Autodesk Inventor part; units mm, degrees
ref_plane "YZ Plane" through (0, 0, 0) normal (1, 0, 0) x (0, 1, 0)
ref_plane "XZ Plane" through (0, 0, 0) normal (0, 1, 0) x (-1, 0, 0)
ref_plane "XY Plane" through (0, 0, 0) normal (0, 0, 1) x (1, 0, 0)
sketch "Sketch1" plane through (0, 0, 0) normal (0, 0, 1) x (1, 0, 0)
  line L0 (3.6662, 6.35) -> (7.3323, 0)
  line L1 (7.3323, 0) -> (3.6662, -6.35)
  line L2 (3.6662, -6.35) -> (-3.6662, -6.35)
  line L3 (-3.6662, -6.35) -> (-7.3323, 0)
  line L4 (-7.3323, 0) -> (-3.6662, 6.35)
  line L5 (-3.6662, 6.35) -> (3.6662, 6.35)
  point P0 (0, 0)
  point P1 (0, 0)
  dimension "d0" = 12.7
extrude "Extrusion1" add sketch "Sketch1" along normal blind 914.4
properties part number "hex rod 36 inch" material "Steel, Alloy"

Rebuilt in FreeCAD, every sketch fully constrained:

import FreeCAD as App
import Part
import Sketcher
from FreeCAD import Vector
Q = App.Units.Quantity

doc = App.newDocument("Part")
body = doc.addObject("PartDesign::Body", "Body")

# Sketch on XY plane
sketch1 = body.newObject("Sketcher::SketchObject", "Sketch")
sketch1.AttachmentSupport = (doc.getObject("XY_Plane"), [""])
sketch1.MapMode = "FlatFace"
sketch1.addGeometry([
    Part.LineSegment(Vector(7.3323, 0, 0), Vector(3.6662, 6.35, 0)),  # 0
    Part.LineSegment(Vector(3.6662, 6.35, 0), Vector(-3.6662, 6.35, 0)),  # 1
    Part.LineSegment(Vector(-3.6662, 6.35, 0), Vector(-7.3323, 0, 0)),  # 2
    Part.LineSegment(Vector(-7.3323, 0, 0), Vector(-3.6662, -6.35, 0)),  # 3
    Part.LineSegment(Vector(-3.6662, -6.35, 0), Vector(3.6662, -6.35, 0)),  # 4
    Part.LineSegment(Vector(3.6662, -6.35, 0), Vector(7.3323, 0, 0)),  # 5
], False)
sketch1.addConstraint([
    Sketcher.Constraint("Coincident", 0, 2, 1, 1),
    Sketcher.Constraint("Coincident", 1, 2, 2, 1),
    Sketcher.Constraint("Coincident", 2, 2, 3, 1),
    Sketcher.Constraint("Coincident", 3, 2, 4, 1),
    Sketcher.Constraint("Coincident", 4, 2, 5, 1),
    Sketcher.Constraint("Coincident", 5, 2, 0, 1),
    Sketcher.Constraint("Horizontal", 1),
    Sketcher.Constraint("Horizontal", 4),
    Sketcher.Constraint("Symmetric", 0, 2, 3, 2, -1, 1),
    Sketcher.Constraint("Symmetric", 2, 2, 5, 2, -1, 1),
    Sketcher.Constraint("PointOnObject", 2, 2, -1),
    Sketcher.Constraint("Parallel", 2, 5),
    Sketcher.Constraint("Vertical", 1, 2, 3, 2),
    Sketcher.Constraint("DistanceY", 3, 2, 1, 2, Q("0.5 in")),
    Sketcher.Constraint("Angle", 0, Q("119.9995 deg")),
    Sketcher.Constraint("DistanceX", 2, 2, 0, 2, Q("0.433 in")),
])
pad1 = body.newObject("PartDesign::Pad", "Pad")
pad1.Profile = sketch1
pad1.Length = Q("36 in")

doc.recompute()
